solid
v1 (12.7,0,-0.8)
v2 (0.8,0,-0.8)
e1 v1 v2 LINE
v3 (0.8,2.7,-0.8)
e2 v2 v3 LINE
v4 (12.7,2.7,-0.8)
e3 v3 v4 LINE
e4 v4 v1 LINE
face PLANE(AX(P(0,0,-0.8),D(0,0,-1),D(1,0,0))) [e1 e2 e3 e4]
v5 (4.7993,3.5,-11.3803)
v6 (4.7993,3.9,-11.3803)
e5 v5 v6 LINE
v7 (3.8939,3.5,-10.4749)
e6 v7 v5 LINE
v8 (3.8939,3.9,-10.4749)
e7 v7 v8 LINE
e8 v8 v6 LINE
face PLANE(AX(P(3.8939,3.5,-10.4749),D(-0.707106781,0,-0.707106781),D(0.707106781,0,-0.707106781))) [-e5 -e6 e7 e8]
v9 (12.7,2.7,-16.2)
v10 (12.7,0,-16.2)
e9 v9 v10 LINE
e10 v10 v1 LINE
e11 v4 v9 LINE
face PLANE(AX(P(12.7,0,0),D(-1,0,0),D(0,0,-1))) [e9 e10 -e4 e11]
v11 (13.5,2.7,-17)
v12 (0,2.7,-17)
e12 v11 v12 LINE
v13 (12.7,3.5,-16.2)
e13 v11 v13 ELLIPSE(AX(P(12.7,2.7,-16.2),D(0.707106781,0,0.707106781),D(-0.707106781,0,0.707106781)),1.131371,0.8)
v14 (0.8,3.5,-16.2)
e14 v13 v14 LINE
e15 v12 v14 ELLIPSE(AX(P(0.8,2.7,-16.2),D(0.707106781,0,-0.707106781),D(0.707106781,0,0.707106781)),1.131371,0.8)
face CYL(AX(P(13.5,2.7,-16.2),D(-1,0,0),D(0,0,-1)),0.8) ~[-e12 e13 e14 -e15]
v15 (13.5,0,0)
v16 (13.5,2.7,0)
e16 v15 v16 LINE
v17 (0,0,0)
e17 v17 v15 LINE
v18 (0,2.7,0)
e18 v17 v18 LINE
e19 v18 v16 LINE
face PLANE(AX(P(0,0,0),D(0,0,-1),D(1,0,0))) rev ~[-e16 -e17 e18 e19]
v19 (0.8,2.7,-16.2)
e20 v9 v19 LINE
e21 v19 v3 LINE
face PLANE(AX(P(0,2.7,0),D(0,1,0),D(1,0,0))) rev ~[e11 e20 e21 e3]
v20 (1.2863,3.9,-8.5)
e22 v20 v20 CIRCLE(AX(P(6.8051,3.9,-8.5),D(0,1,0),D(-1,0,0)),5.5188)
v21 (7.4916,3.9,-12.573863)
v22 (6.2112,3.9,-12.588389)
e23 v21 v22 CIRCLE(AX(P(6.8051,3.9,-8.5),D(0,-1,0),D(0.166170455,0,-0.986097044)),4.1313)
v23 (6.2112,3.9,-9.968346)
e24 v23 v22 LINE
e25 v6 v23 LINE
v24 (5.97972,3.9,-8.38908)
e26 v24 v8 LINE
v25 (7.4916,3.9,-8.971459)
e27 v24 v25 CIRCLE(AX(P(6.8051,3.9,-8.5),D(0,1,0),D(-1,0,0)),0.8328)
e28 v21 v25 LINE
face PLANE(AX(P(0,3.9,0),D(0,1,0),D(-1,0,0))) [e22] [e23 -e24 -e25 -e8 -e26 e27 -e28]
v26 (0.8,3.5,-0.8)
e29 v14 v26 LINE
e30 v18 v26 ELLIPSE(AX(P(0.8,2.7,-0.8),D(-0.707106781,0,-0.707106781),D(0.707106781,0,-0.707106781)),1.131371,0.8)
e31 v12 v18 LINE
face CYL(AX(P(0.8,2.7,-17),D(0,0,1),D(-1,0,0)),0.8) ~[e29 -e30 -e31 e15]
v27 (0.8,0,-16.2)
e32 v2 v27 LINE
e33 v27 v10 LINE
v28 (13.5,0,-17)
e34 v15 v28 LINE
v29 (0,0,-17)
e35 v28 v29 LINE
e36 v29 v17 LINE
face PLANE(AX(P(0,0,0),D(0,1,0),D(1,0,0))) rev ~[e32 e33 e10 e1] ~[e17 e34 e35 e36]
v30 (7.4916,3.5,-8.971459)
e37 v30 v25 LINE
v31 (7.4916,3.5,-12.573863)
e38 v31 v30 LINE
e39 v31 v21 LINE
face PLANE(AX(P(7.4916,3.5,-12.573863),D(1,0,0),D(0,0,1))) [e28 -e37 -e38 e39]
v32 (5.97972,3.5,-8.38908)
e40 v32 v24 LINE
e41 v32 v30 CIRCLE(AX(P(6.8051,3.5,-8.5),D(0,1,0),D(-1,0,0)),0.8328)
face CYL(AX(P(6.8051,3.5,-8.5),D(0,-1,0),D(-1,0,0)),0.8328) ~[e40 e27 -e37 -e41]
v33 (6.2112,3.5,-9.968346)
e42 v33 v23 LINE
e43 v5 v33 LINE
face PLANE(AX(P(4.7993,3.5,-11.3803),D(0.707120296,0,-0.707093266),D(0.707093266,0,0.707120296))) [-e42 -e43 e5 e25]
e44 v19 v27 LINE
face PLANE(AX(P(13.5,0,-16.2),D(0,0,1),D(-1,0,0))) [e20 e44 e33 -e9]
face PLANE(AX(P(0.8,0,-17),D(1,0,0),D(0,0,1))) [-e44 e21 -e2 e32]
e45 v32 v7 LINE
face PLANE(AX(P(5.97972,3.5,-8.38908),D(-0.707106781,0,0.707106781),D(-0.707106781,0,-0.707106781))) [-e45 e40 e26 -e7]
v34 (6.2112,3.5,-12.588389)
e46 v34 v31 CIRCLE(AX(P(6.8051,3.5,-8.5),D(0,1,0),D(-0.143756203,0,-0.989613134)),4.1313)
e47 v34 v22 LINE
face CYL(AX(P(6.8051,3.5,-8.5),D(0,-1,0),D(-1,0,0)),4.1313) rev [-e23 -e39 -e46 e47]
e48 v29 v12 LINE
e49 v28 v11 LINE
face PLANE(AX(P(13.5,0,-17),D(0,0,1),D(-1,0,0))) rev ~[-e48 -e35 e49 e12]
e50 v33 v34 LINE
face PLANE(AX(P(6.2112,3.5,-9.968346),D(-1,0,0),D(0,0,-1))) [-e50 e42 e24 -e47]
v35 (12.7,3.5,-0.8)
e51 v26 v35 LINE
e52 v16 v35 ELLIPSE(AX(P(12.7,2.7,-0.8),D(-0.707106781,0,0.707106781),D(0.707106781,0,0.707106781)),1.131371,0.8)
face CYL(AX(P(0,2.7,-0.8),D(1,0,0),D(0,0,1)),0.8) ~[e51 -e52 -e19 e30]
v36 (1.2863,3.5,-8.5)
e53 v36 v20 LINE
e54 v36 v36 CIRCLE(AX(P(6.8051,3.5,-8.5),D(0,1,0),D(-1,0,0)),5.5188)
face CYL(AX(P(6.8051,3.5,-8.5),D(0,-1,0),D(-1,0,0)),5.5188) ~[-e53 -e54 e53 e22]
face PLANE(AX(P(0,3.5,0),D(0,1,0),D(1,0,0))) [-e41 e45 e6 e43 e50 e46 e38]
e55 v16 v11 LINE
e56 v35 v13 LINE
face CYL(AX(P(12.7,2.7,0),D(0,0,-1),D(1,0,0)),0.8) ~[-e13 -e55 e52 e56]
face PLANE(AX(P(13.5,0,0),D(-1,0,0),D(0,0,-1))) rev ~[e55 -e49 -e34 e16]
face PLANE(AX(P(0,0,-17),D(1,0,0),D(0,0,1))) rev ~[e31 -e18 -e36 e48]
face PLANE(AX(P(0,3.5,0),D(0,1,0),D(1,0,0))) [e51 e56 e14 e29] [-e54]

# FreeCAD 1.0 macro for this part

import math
import FreeCAD as App
import Part
import Sketcher
Q = App.Units.Quantity


def edges_at(feature, points):
    """Names of the edges that pass closest to the given points."""
    edges = feature.Shape.Edges
    near = lambda p: min(range(len(edges)), key=lambda i: edges[i].distToShape(Part.Vertex(*p))[0])
    return sorted({f"Edge{near(p) + 1}" for p in points})


def faces_at(feature, points):
    """Names of the faces that lie closest to the given points."""
    faces = feature.Shape.Faces
    near = lambda p: min(range(len(faces)), key=lambda i: faces[i].distToShape(Part.Vertex(*p))[0])
    return sorted({f"Face{near(p) + 1}" for p in points})

doc = App.newDocument("Part")
body = doc.addObject("PartDesign::Body", "Body")

sketch1 = body.newObject("Sketcher::SketchObject", "Sketch")
sketch1.AttachmentSupport = (doc.getObject("XZ_Plane"), [""])
sketch1.MapMode = "FlatFace"
sketch1.addGeometry([
    Part.LineSegment(App.Vector(0, -17, 0), App.Vector(0, 0, 0)),
    Part.LineSegment(App.Vector(0, 0, 0), App.Vector(14, 0, 0)),
    Part.LineSegment(App.Vector(14, 0, 0), App.Vector(14, -17, 0)),
    Part.LineSegment(App.Vector(14, -17, 0), App.Vector(0, -17, 0)),
], False)
sketch1.addConstraint([
    Sketcher.Constraint("Coincident", 0, 2, 1, 1),
    Sketcher.Constraint("Coincident", 1, 2, 2, 1),
    Sketcher.Constraint("Coincident", 2, 2, 3, 1),
    Sketcher.Constraint("Coincident", 3, 2, 0, 1),
    Sketcher.Constraint("Vertical", 0),
    Sketcher.Constraint("Horizontal", 1),
    Sketcher.Constraint("Vertical", 2),
    Sketcher.Constraint("Horizontal", 3),
    Sketcher.Constraint("Coincident", 0, 2, -1, 1),
    Sketcher.Constraint("DistanceY", 0, 1, 0, 2, Q("17 mm")),
    Sketcher.Constraint("DistanceX", 1, 1, 1, 2, Q("13.5 mm")),
])
pad1 = body.newObject("PartDesign::Pad", "Pad")
pad1.Profile = sketch1
pad1.Length = 3.5
pad1.Reversed = True
doc.recompute()

thickness = body.newObject("PartDesign::Thickness", "Thickness")
thickness.Base = (pad1, faces_at(pad1, [(4.5, 0, -11.333)]))
thickness.Value = 0.8
thickness.Reversed = True
thickness.Join = "Intersection"
doc.recompute()

fillet = body.newObject("PartDesign::Fillet", "Fillet")
fillet.Base = (thickness, edges_at(thickness, [
    (6.75, 3.5, 0),
    (0, 3.5, -8.5),
    (6.75, 3.5, -17),
    (13.5, 3.5, -8.5),
]))
fillet.Radius = 0.8

sketch2 = body.newObject("Sketcher::SketchObject", "Sketch001")
sketch2.AttachmentSupport = (doc.getObject("XZ_Plane"), [""])
sketch2.MapMode = "FlatFace"
sketch2.AttachmentOffset = App.Placement(App.Vector(0, 0, -3.5), App.Rotation())
sketch2.addGeometry([
    Part.Circle(App.Vector(6.8, -8.5, 0), App.Vector(0, 0, 1), 5.5),
    Part.ArcOfCircle(Part.Circle(App.Vector(6.8, -8.5, 0), App.Vector(0, 0, 1), 4.1), math.radians(-80), math.radians(262)),
    Part.LineSegment(App.Vector(6.2, -12.6, 0), App.Vector(6.2, -10, 0)),
    Part.LineSegment(App.Vector(6.2, -10, 0), App.Vector(4.8, -11.4, 0)),
    Part.LineSegment(App.Vector(4.8, -11.4, 0), App.Vector(3.9, -10.5, 0)),
    Part.LineSegment(App.Vector(3.9, -10.5, 0), App.Vector(6, -8.4, 0)),
    Part.ArcOfCircle(Part.Circle(App.Vector(6.8, -8.5, 0), App.Vector(0, 0, 1), 0.8), math.radians(-34), math.radians(172)),
    Part.LineSegment(App.Vector(7.5, -9, 0), App.Vector(7.5, -12.6, 0)),
], False)
sketch2.addConstraint([
    Sketcher.Constraint("Coincident", 1, 2, 2, 1),
    Sketcher.Constraint("Coincident", 2, 2, 3, 1),
    Sketcher.Constraint("Coincident", 3, 2, 4, 1),
    Sketcher.Constraint("Coincident", 4, 2, 5, 1),
    Sketcher.Constraint("Coincident", 5, 2, 6, 2),
    Sketcher.Constraint("Coincident", 6, 1, 7, 1),
    Sketcher.Constraint("Coincident", 7, 2, 1, 1),
    Sketcher.Constraint("Vertical", 2),
    Sketcher.Constraint("Vertical", 7),
    Sketcher.Constraint("Coincident", 1, 3, 0, 3),
    Sketcher.Constraint("Coincident", 6, 3, 0, 3),
    Sketcher.Constraint("Perpendicular", 3, 4),
    Sketcher.Constraint("Perpendicular", 4, 5),
    Sketcher.Constraint("Angle", 3, Q("-134.999 deg")),
    Sketcher.Constraint("Diameter", 0, Q("11.0376 mm")),
    Sketcher.Constraint("DistanceY", 2, 1, 2, 2, Q("2.62 mm")),
    Sketcher.Constraint("DistanceY", 0, 3, -1, 1, Q("8.5 mm")),
    Sketcher.Constraint("Radius", 1, Q("4.1313 mm")),
    Sketcher.Constraint("Radius", 6, Q("0.8328 mm")),
    Sketcher.Constraint("DistanceY", 7, 2, 7, 1, Q("3.6024 mm")),
    Sketcher.Constraint("DistanceX", -1, 1, 0, 3, Q("6.805 mm")),
    Sketcher.Constraint("DistanceX", -1, 1, 4, 2, Q("3.894 mm")),
    Sketcher.Constraint("DistanceY", 4, 2, -1, 1, Q("10.475 mm")),
    Sketcher.Constraint("DistanceX", 1, 2, 0, 3, Q("0.594 mm")),
])
pad2 = body.newObject("PartDesign::Pad", "Pad001")
pad2.Profile = sketch2
pad2.Length = 0.4
pad2.Reversed = True

doc.recompute()
